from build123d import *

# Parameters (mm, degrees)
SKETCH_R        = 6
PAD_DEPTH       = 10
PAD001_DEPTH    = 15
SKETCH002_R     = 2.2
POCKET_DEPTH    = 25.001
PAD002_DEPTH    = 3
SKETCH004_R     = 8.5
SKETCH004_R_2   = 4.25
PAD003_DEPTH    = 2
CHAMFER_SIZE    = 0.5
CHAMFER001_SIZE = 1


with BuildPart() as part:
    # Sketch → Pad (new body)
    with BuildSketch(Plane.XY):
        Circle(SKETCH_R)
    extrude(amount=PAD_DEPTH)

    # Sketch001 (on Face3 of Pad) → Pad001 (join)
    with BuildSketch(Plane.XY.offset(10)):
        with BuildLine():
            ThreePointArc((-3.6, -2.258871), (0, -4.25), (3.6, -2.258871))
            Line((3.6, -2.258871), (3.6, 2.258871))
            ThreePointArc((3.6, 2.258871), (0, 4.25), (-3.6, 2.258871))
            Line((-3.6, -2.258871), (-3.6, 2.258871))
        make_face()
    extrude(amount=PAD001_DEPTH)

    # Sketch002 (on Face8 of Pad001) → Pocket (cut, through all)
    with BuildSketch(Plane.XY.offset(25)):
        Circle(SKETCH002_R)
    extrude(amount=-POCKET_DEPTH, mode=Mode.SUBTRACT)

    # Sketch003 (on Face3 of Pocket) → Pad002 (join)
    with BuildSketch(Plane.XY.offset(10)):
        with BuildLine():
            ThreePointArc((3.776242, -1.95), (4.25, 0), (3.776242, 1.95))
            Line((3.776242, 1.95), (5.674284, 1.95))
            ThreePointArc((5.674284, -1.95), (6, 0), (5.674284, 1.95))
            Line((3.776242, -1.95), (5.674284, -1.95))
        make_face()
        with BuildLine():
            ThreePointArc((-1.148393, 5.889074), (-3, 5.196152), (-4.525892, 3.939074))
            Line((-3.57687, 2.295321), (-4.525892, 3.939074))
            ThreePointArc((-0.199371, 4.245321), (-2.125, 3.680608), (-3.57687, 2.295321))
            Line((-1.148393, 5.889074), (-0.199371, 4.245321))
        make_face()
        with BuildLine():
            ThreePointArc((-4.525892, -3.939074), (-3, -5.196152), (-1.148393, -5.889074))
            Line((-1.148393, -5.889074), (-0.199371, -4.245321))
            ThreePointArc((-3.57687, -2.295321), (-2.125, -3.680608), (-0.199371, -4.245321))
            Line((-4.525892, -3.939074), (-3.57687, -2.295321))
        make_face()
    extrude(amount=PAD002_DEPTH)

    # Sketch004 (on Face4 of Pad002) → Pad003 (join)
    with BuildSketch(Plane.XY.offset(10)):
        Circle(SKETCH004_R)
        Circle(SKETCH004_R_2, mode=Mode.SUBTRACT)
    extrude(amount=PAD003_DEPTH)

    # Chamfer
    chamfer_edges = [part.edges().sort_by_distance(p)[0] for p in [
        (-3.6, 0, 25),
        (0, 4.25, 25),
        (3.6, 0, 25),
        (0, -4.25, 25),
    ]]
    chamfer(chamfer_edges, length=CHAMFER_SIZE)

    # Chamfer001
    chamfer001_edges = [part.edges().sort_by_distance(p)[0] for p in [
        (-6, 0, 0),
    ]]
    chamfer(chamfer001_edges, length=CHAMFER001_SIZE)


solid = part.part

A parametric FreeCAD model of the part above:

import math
import FreeCAD as App
import Part
import Sketcher
from FreeCAD import Vector
Q = App.Units.Quantity


def edges_at(feature, points):
    """Names of the edges that pass closest to the given points."""
    edges = feature.Shape.Edges
    near = lambda p: min(range(len(edges)), key=lambda i: edges[i].distToShape(Part.Vertex(*p))[0])
    return sorted({f"Edge{near(p) + 1}" for p in points})

doc = App.newDocument("Part")
body = doc.addObject("PartDesign::Body", "Body")

# Sketch on XY plane
sketch1 = body.newObject("Sketcher::SketchObject", "Sketch")
sketch1.AttachmentSupport = (doc.getObject("XY_Plane"), [""])
sketch1.MapMode = "FlatFace"
sketch1.addGeometry(Part.Circle(Vector(0, 0, 0), Vector(0, 0, 1), 6), False)
sketch1.addConstraint(Sketcher.Constraint("Coincident", 0, 3, -1, 1))
sketch1.addConstraint(Sketcher.Constraint("Diameter", 0, Q("12 mm")))
pad1 = body.newObject("PartDesign::Pad", "Pad")
pad1.Profile = sketch1
pad1.Length = 10

# Sketch on XY plane
sketch2 = body.newObject("Sketcher::SketchObject", "Sketch001")
sketch2.AttachmentSupport = (doc.getObject("XY_Plane"), [""])
sketch2.MapMode = "FlatFace"
sketch2.AttachmentOffset = App.Placement(Vector(0, 0, 10), App.Rotation())
sketch2.addGeometry(Part.ArcOfCircle(Part.Circle(Vector(0, 0, 0), Vector(0, 0, 1), 4.2), math.radians(-148), math.radians(-32)), False)
sketch2.addGeometry(Part.LineSegment(Vector(3.6, -2.3, 0), Vector(3.6, 2.3, 0)), False)
sketch2.addGeometry(Part.ArcOfCircle(Part.Circle(Vector(0, 0, 0), Vector(0, 0, 1), 4.2), math.radians(32), math.radians(148)), False)
sketch2.addGeometry(Part.LineSegment(Vector(-3.6, 2.3, 0), Vector(-3.6, -2.3, 0)), False)
sketch2.addConstraint(Sketcher.Constraint("Coincident", 0, 2, 1, 1))
sketch2.addConstraint(Sketcher.Constraint("Coincident", 1, 2, 2, 1))
sketch2.addConstraint(Sketcher.Constraint("Coincident", 2, 2, 3, 1))
sketch2.addConstraint(Sketcher.Constraint("Coincident", 3, 2, 0, 1))
sketch2.addConstraint(Sketcher.Constraint("Vertical", 1))
sketch2.addConstraint(Sketcher.Constraint("Vertical", 3))
sketch2.addConstraint(Sketcher.Constraint("Coincident", 0, 3, -1, 1))
sketch2.addConstraint(Sketcher.Constraint("Coincident", 2, 3, -1, 1))
sketch2.addConstraint(Sketcher.Constraint("Equal", 0, 2))
sketch2.addConstraint(Sketcher.Constraint("Horizontal", 1, 2, 2, 2))
sketch2.addConstraint(Sketcher.Constraint("Radius", 0, Q("4.25 mm")))
sketch2.addConstraint(Sketcher.Constraint("DistanceX", -1, 1, 0, 2, Q("3.6 mm")))
pad2 = body.newObject("PartDesign::Pad", "Pad001")
pad2.Profile = sketch2
pad2.Length = 15

# Sketch on XY plane
sketch3 = body.newObject("Sketcher::SketchObject", "Sketch002")
sketch3.AttachmentSupport = (doc.getObject("XY_Plane"), [""])
sketch3.MapMode = "FlatFace"
sketch3.AttachmentOffset = App.Placement(Vector(0, 0, 25), App.Rotation())
sketch3.addGeometry(Part.Circle(Vector(0, 0, 0), Vector(0, 0, 1), 2.2), False)
sketch3.addConstraint(Sketcher.Constraint("Coincident", 0, 3, -1, 1))
sketch3.addConstraint(Sketcher.Constraint("Diameter", 0, Q("4.4 mm")))
pocket1 = body.newObject("PartDesign::Pocket", "Pocket")
pocket1.Profile = sketch3
pocket1.Type = "ThroughAll"

# Sketch on XY plane
sketch4 = body.newObject("Sketcher::SketchObject", "Sketch003")
sketch4.AttachmentSupport = (doc.getObject("XY_Plane"), [""])
sketch4.MapMode = "FlatFace"
sketch4.AttachmentOffset = App.Placement(Vector(0, 0, 10), App.Rotation())
sketch4.addGeometry(Part.ArcOfCircle(Part.Circle(Vector(0, 0, 0), Vector(0, 0, 1), 4.3), math.radians(-27), math.radians(27)), False)
sketch4.addGeometry(Part.LineSegment(Vector(3.8, -1.9, 0), Vector(5.7, -1.9, 0)), False)
sketch4.addGeometry(Part.ArcOfCircle(Part.Circle(Vector(0, 0, 0), Vector(0, 0, 1), 6), math.radians(-19), math.radians(19)), False)
sketch4.addGeometry(Part.LineSegment(Vector(5.7, 1.9, 0), Vector(3.8, 1.9, 0)), False)
sketch4.addGeometry(Part.ArcOfCircle(Part.Circle(Vector(0, 0, 0), Vector(0, 0, 1), 6), math.radians(101), math.radians(139)), False)
sketch4.addGeometry(Part.LineSegment(Vector(-4.5, 3.9, 0), Vector(-3.6, 2.3, 0)), False)
sketch4.addGeometry(Part.ArcOfCircle(Part.Circle(Vector(0, 0, 0), Vector(0, 0, 1), 4.2), math.radians(93), math.radians(147)), False)
sketch4.addGeometry(Part.LineSegment(Vector(-0.2, 4.2, 0), Vector(-1.1, 5.9, 0)), False)
sketch4.addGeometry(Part.ArcOfCircle(Part.Circle(Vector(0, 0, 0), Vector(0, 0, 1), 6), math.radians(-139), math.radians(-101)), False)
sketch4.addGeometry(Part.LineSegment(Vector(-1.1, -5.9, 0), Vector(-0.2, -4.2, 0)), False)
sketch4.addGeometry(Part.ArcOfCircle(Part.Circle(Vector(0, 0, 0), Vector(0, 0, 1), 4.2), math.radians(-147), math.radians(-93)), False)
sketch4.addGeometry(Part.LineSegment(Vector(-3.6, -2.3, 0), Vector(-4.5, -3.9, 0)), False)
sketch4.addConstraint(Sketcher.Constraint("Coincident", 0, 1, 1, 1))
sketch4.addConstraint(Sketcher.Constraint("Coincident", 1, 2, 2, 1))
sketch4.addConstraint(Sketcher.Constraint("Coincident", 2, 2, 3, 1))
sketch4.addConstraint(Sketcher.Constraint("Coincident", 3, 2, 0, 2))
sketch4.addConstraint(Sketcher.Constraint("Coincident", 4, 2, 5, 1))
sketch4.addConstraint(Sketcher.Constraint("Coincident", 5, 2, 6, 2))
sketch4.addConstraint(Sketcher.Constraint("Coincident", 6, 1, 7, 1))
sketch4.addConstraint(Sketcher.Constraint("Coincident", 7, 2, 4, 1))
sketch4.addConstraint(Sketcher.Constraint("Coincident", 8, 2, 9, 1))
sketch4.addConstraint(Sketcher.Constraint("Coincident", 9, 2, 10, 2))
sketch4.addConstraint(Sketcher.Constraint("Coincident", 10, 1, 11, 1))
sketch4.addConstraint(Sketcher.Constraint("Coincident", 11, 2, 8, 1))
sketch4.addConstraint(Sketcher.Constraint("Horizontal", 1))
sketch4.addConstraint(Sketcher.Constraint("Horizontal", 3))
sketch4.addConstraint(Sketcher.Constraint("Coincident", 0, 3, -1, 1))
sketch4.addConstraint(Sketcher.Constraint("Coincident", 2, 3, -1, 1))
sketch4.addConstraint(Sketcher.Constraint("Coincident", 4, 3, -1, 1))
sketch4.addConstraint(Sketcher.Constraint("Coincident", 6, 3, -1, 1))
sketch4.addConstraint(Sketcher.Constraint("Coincident", 8, 3, -1, 1))
sketch4.addConstraint(Sketcher.Constraint("Coincident", 10, 3, -1, 1))
sketch4.addConstraint(Sketcher.Constraint("Equal", 4, 8))
sketch4.addConstraint(Sketcher.Constraint("Equal", 6, 10))
sketch4.addConstraint(Sketcher.Constraint("Parallel", 5, 7))
sketch4.addConstraint(Sketcher.Constraint("Parallel", 9, 11))
sketch4.addConstraint(Sketcher.Constraint("Vertical", 1, 2, 2, 2))
sketch4.addConstraint(Sketcher.Constraint("Vertical", 7, 2, 8, 2))
sketch4.addConstraint(Sketcher.Constraint("Vertical", 6, 1, 9, 2))
sketch4.addConstraint(Sketcher.Constraint("Vertical", 5, 2, 10, 1))
sketch4.addConstraint(Sketcher.Constraint("Equal", 5, 7))
sketch4.addConstraint(Sketcher.Constraint("Radius", 2, Q("5.999998 mm")))
sketch4.addConstraint(Sketcher.Constraint("Angle", 5, Q("-59.99998 deg")))
sketch4.addConstraint(Sketcher.Constraint("Radius", 6, Q("4.249998 mm")))
sketch4.addConstraint(Sketcher.Constraint("DistanceY", 1, 2, 2, 2, Q("3.9 mm")))
sketch4.addConstraint(Sketcher.Constraint("DistanceY", 5, 2, 6, 1, Q("1.95 mm")))
sketch4.addConstraint(Sketcher.Constraint("Radius", 0, Q("4.250004 mm")))
sketch4.addConstraint(Sketcher.Constraint("Radius", 4, Q("6.000007 mm")))
pad3 = body.newObject("PartDesign::Pad", "Pad002")
pad3.Profile = sketch4
pad3.Length = 3

# Sketch on XY plane
sketch5 = body.newObject("Sketcher::SketchObject", "Sketch004")
sketch5.AttachmentSupport = (doc.getObject("XY_Plane"), [""])
sketch5.MapMode = "FlatFace"
sketch5.AttachmentOffset = App.Placement(Vector(0, 0, 10), App.Rotation())
sketch5.addGeometry(Part.Circle(Vector(0, 0, 0), Vector(0, 0, 1), 8.5), False)
sketch5.addGeometry(Part.Circle(Vector(0, 0, 0), Vector(0, 0, 1), 4.2), False)
sketch5.addConstraint(Sketcher.Constraint("Coincident", 0, 3, -1, 1))
sketch5.addConstraint(Sketcher.Constraint("Coincident", 1, 3, -1, 1))
sketch5.addConstraint(Sketcher.Constraint("Diameter", 0, Q("17 mm")))
sketch5.addConstraint(Sketcher.Constraint("Diameter", 1, Q("8.5 mm")))
pad4 = body.newObject("PartDesign::Pad", "Pad003")
pad4.Profile = sketch5
pad4.Length = 2
doc.recompute()

chamfer = body.newObject("PartDesign::Chamfer", "Chamfer")
chamfer.Base = (pad4, edges_at(pad4, [
    (-3.6, 0, 25),
    (0, 4.25, 25),
    (3.6, 0, 25),
    (0, -4.25, 25),
]))
chamfer.Size = 0.5
doc.recompute()

chamfer2 = body.newObject("PartDesign::Chamfer", "Chamfer001")
chamfer2.Base = (chamfer, edges_at(chamfer, [(-6, 0, 0)]))
chamfer2.Size = 1

doc.recompute()
